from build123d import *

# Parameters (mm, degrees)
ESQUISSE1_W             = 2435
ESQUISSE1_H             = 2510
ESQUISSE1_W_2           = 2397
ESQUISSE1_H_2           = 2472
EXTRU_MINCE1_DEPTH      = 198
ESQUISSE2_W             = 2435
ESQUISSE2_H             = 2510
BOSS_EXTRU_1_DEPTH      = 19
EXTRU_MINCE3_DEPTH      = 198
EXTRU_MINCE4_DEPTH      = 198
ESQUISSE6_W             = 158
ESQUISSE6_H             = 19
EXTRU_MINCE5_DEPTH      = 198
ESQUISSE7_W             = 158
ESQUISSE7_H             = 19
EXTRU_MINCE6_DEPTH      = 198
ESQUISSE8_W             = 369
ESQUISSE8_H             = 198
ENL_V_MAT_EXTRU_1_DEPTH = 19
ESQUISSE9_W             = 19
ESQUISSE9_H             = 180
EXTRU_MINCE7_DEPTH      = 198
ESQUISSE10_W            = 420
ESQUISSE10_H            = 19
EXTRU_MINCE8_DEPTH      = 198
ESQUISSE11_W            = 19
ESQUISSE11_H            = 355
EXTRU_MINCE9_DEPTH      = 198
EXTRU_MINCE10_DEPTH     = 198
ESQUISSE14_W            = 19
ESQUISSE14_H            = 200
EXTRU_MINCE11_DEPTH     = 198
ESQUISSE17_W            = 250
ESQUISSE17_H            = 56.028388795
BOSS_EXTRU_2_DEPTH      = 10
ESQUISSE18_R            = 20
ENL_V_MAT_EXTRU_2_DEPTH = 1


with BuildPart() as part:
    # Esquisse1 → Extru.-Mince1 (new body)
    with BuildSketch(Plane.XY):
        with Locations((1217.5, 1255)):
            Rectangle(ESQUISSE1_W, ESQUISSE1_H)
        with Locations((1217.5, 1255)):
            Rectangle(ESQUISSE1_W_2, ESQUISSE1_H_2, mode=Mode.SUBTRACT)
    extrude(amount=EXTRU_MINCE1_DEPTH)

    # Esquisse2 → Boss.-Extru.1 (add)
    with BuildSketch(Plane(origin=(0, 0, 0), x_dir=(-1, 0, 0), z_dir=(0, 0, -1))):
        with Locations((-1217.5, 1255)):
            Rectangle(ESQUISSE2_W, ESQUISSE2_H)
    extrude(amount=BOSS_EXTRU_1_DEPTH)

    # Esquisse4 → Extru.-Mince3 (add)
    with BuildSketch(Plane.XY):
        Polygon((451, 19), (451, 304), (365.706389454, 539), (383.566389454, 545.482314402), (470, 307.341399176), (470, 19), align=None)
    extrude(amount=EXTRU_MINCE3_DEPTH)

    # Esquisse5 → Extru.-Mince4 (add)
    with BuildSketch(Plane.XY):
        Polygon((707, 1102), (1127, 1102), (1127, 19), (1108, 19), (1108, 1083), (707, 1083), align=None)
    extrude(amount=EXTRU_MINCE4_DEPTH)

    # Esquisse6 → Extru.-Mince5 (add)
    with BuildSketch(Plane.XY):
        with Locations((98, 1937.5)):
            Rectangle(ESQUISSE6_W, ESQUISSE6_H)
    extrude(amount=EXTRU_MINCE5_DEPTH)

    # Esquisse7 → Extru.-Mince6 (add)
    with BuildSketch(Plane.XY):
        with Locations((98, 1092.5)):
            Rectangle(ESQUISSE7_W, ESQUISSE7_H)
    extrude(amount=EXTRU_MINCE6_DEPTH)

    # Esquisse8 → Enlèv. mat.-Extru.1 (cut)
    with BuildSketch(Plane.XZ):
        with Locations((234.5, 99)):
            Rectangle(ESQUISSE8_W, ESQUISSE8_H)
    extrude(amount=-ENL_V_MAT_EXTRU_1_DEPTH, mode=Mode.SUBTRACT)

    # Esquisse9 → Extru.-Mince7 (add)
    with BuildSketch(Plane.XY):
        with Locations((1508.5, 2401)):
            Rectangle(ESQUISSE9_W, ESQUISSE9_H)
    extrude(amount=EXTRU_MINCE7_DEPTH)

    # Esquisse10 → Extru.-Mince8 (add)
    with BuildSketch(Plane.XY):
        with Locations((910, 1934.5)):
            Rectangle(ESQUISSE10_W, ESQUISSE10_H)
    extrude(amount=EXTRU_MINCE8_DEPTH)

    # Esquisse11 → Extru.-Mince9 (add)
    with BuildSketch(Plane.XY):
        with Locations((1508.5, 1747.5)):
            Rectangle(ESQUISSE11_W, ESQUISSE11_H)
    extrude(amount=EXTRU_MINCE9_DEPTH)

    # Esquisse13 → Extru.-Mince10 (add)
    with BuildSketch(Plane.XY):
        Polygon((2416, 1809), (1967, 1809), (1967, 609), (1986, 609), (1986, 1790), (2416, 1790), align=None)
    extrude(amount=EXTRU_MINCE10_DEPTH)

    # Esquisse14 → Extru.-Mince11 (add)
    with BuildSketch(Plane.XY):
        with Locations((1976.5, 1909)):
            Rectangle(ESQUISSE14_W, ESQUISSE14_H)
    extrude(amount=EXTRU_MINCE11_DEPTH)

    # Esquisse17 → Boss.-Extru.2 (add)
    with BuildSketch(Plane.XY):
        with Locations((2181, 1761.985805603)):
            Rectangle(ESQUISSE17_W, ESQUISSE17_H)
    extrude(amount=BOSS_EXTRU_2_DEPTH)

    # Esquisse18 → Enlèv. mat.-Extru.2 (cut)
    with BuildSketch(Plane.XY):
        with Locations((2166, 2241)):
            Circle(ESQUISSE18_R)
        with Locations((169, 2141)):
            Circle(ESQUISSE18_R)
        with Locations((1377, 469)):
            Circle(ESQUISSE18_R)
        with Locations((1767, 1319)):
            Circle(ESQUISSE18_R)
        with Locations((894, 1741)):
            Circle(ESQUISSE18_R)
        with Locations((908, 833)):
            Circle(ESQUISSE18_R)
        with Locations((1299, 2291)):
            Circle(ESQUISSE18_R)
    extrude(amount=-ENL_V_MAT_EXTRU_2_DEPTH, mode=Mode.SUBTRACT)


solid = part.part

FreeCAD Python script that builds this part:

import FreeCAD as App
import Part
import Sketcher


def add_polygon(sketch, points):
    """Adds a closed chain of lines whose ends are joined by coincident constraints."""
    first, n = sketch.GeometryCount, len(points)
    for a, b in zip(points, points[1:] + points[:1]):
        sketch.addGeometry(Part.LineSegment(App.Vector(*a, 0), App.Vector(*b, 0)), False)
    for i in range(n):
        sketch.addConstraint(Sketcher.Constraint("Coincident", first + i, 2, first + (i + 1) % n, 1))

doc = App.newDocument("Part")
body = doc.addObject("PartDesign::Body", "Body")

# Sketch on XY plane
sketch1 = body.newObject("Sketcher::SketchObject", "Sketch")
sketch1.AttachmentSupport = (doc.getObject("XY_Plane"), [""])
sketch1.MapMode = "FlatFace"
add_polygon(sketch1, [(0, 2510), (0, 0), (2435, 0), (2435, 2510)])  # lines 0-3
add_polygon(sketch1, [(2416, 19), (19, 19), (19, 2491), (2416, 2491)])  # lines 4-7
sketch1.addConstraint([
    Sketcher.Constraint("Vertical", 0),
    Sketcher.Constraint("Horizontal", 1),
    Sketcher.Constraint("Vertical", 2),
    Sketcher.Constraint("Horizontal", 3),
    Sketcher.Constraint("Horizontal", 4),
    Sketcher.Constraint("Vertical", 5),
    Sketcher.Constraint("Horizontal", 6),
    Sketcher.Constraint("Vertical", 7),
    Sketcher.Constraint("Coincident", 0, 2, -1, 1),
    Sketcher.Constraint("DistanceX", 1, 1, 1, 2, 2435.0),
    Sketcher.Constraint("DistanceX", 4, 2, 4, 1, 2397.0),
    Sketcher.Constraint("DistanceY", 0, 2, 0, 1, 2510.0),
    Sketcher.Constraint("DistanceY", 5, 1, 5, 2, 2472.0),
    Sketcher.Constraint("DistanceX", -1, 1, 4, 2, 19.0),
    Sketcher.Constraint("DistanceY", -1, 1, 4, 2, 19.0),
])
pad1 = body.newObject("PartDesign::Pad", "Pad")
pad1.Profile = sketch1
pad1.Length = 198

# Sketch on XY plane
sketch2 = body.newObject("Sketcher::SketchObject", "Sketch001")
sketch2.AttachmentSupport = (doc.getObject("XY_Plane"), [""])
sketch2.MapMode = "FlatFace"
add_polygon(sketch2, [(2435, 2510), (2435, 0), (0, 0), (0, 2510)])  # lines 0-3
sketch2.addConstraint([
    Sketcher.Constraint("Vertical", 0),
    Sketcher.Constraint("Horizontal", 1),
    Sketcher.Constraint("Vertical", 2),
    Sketcher.Constraint("Horizontal", 3),
    Sketcher.Constraint("Coincident", 1, 2, -1, 1),
    Sketcher.Constraint("DistanceX", 1, 2, 1, 1, 2435.0),
    Sketcher.Constraint("DistanceY", 0, 2, 0, 1, 2510.0),
])
pad2 = body.newObject("PartDesign::Pad", "Pad001")
pad2.Profile = sketch2
pad2.Length = 19
pad2.Reversed = True

# Sketch on XY plane
sketch3 = body.newObject("Sketcher::SketchObject", "Sketch002")
sketch3.AttachmentSupport = (doc.getObject("XY_Plane"), [""])
sketch3.MapMode = "FlatFace"
add_polygon(sketch3, [(451, 304), (451, 19), (470, 19), (470, 307.341399), (383.566389, 545.482314), (365.706389, 539)])  # lines 0-5
sketch3.addConstraint([
    Sketcher.Constraint("Vertical", 0),
    Sketcher.Constraint("Horizontal", 1),
    Sketcher.Constraint("Vertical", 2),
    Sketcher.Constraint("Perpendicular", 3, 4),
    Sketcher.Constraint("Perpendicular", 4, 5),
    Sketcher.Constraint("DistanceX", 1, 1, 1, 2, 19.0),
    Sketcher.Constraint("DistanceY", 0, 2, 0, 1, 285.0),
    Sketcher.Constraint("Distance", 4, 19.0),
    Sketcher.Constraint("Distance", 5, 250.0),
    Sketcher.Constraint("DistanceX", -1, 1, 0, 2, 451.0),
    Sketcher.Constraint("DistanceY", -1, 1, 0, 2, 19.0),
    Sketcher.Constraint("DistanceY", -1, 1, 4, 2, 539.0),
])
pad3 = body.newObject("PartDesign::Pad", "Pad002")
pad3.Profile = sketch3
pad3.Length = 198

# Sketch on XY plane
sketch4 = body.newObject("Sketcher::SketchObject", "Sketch003")
sketch4.AttachmentSupport = (doc.getObject("XY_Plane"), [""])
sketch4.MapMode = "FlatFace"
add_polygon(sketch4, [(1127, 1102), (707, 1102), (707, 1083), (1108, 1083), (1108, 19), (1127, 19)])  # lines 0-5
sketch4.addConstraint([
    Sketcher.Constraint("Horizontal", 0),
    Sketcher.Constraint("Vertical", 1),
    Sketcher.Constraint("Horizontal", 2),
    Sketcher.Constraint("Vertical", 3),
    Sketcher.Constraint("Horizontal", 4),
    Sketcher.Constraint("Vertical", 5),
    Sketcher.Constraint("Equal", 4, 1),
    Sketcher.Constraint("DistanceX", 0, 2, 0, 1, 420.0),
    Sketcher.Constraint("DistanceX", 2, 1, 2, 2, 401.0),
    Sketcher.Constraint("DistanceY", 3, 2, 3, 1, 1064.0),
    Sketcher.Constraint("DistanceX", -1, 1, 0, 2, 707.0),
    Sketcher.Constraint("DistanceY", -1, 1, 0, 2, 1102.0),
])
pad4 = body.newObject("PartDesign::Pad", "Pad003")
pad4.Profile = sketch4
pad4.Length = 198

# Sketch on XY plane
sketch5 = body.newObject("Sketcher::SketchObject", "Sketch004")
sketch5.AttachmentSupport = (doc.getObject("XY_Plane"), [""])
sketch5.MapMode = "FlatFace"
add_polygon(sketch5, [(19, 1947), (19, 1928), (177, 1928), (177, 1947)])  # lines 0-3
sketch5.addConstraint([
    Sketcher.Constraint("Vertical", 0),
    Sketcher.Constraint("Horizontal", 1),
    Sketcher.Constraint("Vertical", 2),
    Sketcher.Constraint("Horizontal", 3),
    Sketcher.Constraint("DistanceX", 1, 1, 1, 2, 158.0),
    Sketcher.Constraint("DistanceY", 0, 2, 0, 1, 19.0),
    Sketcher.Constraint("DistanceX", -1, 1, 0, 2, 19.0),
    Sketcher.Constraint("DistanceY", -1, 1, 0, 2, 1928.0),
])
pad5 = body.newObject("PartDesign::Pad", "Pad004")
pad5.Profile = sketch5
pad5.Length = 198

# Sketch on XY plane
sketch6 = body.newObject("Sketcher::SketchObject", "Sketch005")
sketch6.AttachmentSupport = (doc.getObject("XY_Plane"), [""])
sketch6.MapMode = "FlatFace"
add_polygon(sketch6, [(19, 1102), (19, 1083), (177, 1083), (177, 1102)])  # lines 0-3
sketch6.addConstraint([
    Sketcher.Constraint("Vertical", 0),
    Sketcher.Constraint("Horizontal", 1),
    Sketcher.Constraint("Vertical", 2),
    Sketcher.Constraint("Horizontal", 3),
    Sketcher.Constraint("DistanceX", 1, 1, 1, 2, 158.0),
    Sketcher.Constraint("DistanceY", 0, 2, 0, 1, 19.0),
    Sketcher.Constraint("DistanceX", -1, 1, 0, 2, 19.0),
    Sketcher.Constraint("DistanceY", -1, 1, 0, 2, 1083.0),
])
pad6 = body.newObject("PartDesign::Pad", "Pad005")
pad6.Profile = sketch6
pad6.Length = 198

# Sketch on XZ plane
sketch7 = body.newObject("Sketcher::SketchObject", "Sketch006")
sketch7.AttachmentSupport = (doc.getObject("XZ_Plane"), [""])
sketch7.MapMode = "FlatFace"
add_polygon(sketch7, [(50, 198), (50, 0), (419, 0), (419, 198)])  # lines 0-3
sketch7.addConstraint([
    Sketcher.Constraint("Vertical", 0),
    Sketcher.Constraint("Horizontal", 1),
    Sketcher.Constraint("Vertical", 2),
    Sketcher.Constraint("Horizontal", 3),
    Sketcher.Constraint("PointOnObject", 0, 2, -1),
    Sketcher.Constraint("DistanceX", 1, 1, 1, 2, 369.0),
    Sketcher.Constraint("DistanceY", 0, 2, 0, 1, 198.0),
    Sketcher.Constraint("DistanceX", -1, 1, 0, 2, 50.0),
])
pocket1 = body.newObject("PartDesign::Pocket", "Pocket")
pocket1.Profile = sketch7
pocket1.Length = 19

# Sketch on XY plane
sketch8 = body.newObject("Sketcher::SketchObject", "Sketch007")
sketch8.AttachmentSupport = (doc.getObject("XY_Plane"), [""])
sketch8.MapMode = "FlatFace"
add_polygon(sketch8, [(1499, 2491), (1499, 2311), (1518, 2311), (1518, 2491)])  # lines 0-3
sketch8.addConstraint([
    Sketcher.Constraint("Vertical", 0),
    Sketcher.Constraint("Horizontal", 1),
    Sketcher.Constraint("Vertical", 2),
    Sketcher.Constraint("Horizontal", 3),
    Sketcher.Constraint("DistanceX", 1, 1, 1, 2, 19.0),
    Sketcher.Constraint("DistanceY", 0, 2, 0, 1, 180.0),
    Sketcher.Constraint("DistanceX", -1, 1, 0, 2, 1499.0),
    Sketcher.Constraint("DistanceY", -1, 1, 0, 2, 2311.0),
])
pad7 = body.newObject("PartDesign::Pad", "Pad006")
pad7.Profile = sketch8
pad7.Length = 198

# Sketch on XY plane
sketch9 = body.newObject("Sketcher::SketchObject", "Sketch008")
sketch9.AttachmentSupport = (doc.getObject("XY_Plane"), [""])
sketch9.MapMode = "FlatFace"
add_polygon(sketch9, [(700, 1944), (700, 1925), (1120, 1925), (1120, 1944)])  # lines 0-3
sketch9.addConstraint([
    Sketcher.Constraint("Vertical", 0),
    Sketcher.Constraint("Horizontal", 1),
    Sketcher.Constraint("Vertical", 2),
    Sketcher.Constraint("Horizontal", 3),
    Sketcher.Constraint("DistanceX", 1, 1, 1, 2, 420.0),
    Sketcher.Constraint("DistanceY", 0, 2, 0, 1, 19.0),
    Sketcher.Constraint("DistanceX", -1, 1, 0, 2, 700.0),
    Sketcher.Constraint("DistanceY", -1, 1, 0, 2, 1925.0),
])
pad8 = body.newObject("PartDesign::Pad", "Pad007")
pad8.Profile = sketch9
pad8.Length = 198

# Sketch on XY plane
sketch10 = body.newObject("Sketcher::SketchObject", "Sketch009")
sketch10.AttachmentSupport = (doc.getObject("XY_Plane"), [""])
sketch10.MapMode = "FlatFace"
add_polygon(sketch10, [(1499, 1925), (1499, 1570), (1518, 1570), (1518, 1925)])  # lines 0-3
sketch10.addConstraint([
    Sketcher.Constraint("Vertical", 0),
    Sketcher.Constraint("Horizontal", 1),
    Sketcher.Constraint("Vertical", 2),
    Sketcher.Constraint("Horizontal", 3),
    Sketcher.Constraint("DistanceX", 1, 1, 1, 2, 19.0),
    Sketcher.Constraint("DistanceY", 0, 2, 0, 1, 355.0),
    Sketcher.Constraint("DistanceX", -1, 1, 0, 2, 1499.0),
    Sketcher.Constraint("DistanceY", -1, 1, 0, 2, 1570.0),
])
pad9 = body.newObject("PartDesign::Pad", "Pad008")
pad9.Profile = sketch10
pad9.Length = 198

# Sketch on XY plane
sketch11 = body.newObject("Sketcher::SketchObject", "Sketch010")
sketch11.AttachmentSupport = (doc.getObject("XY_Plane"), [""])
sketch11.MapMode = "FlatFace"
add_polygon(sketch11, [(2416, 1809), (1967, 1809), (1967, 609), (1986, 609), (1986, 1790), (2416, 1790)])  # lines 0-5
sketch11.addConstraint([
    Sketcher.Constraint("Horizontal", 0),
    Sketcher.Constraint("Vertical", 1),
    Sketcher.Constraint("Horizontal", 2),
    Sketcher.Constraint("Vertical", 3),
    Sketcher.Constraint("Horizontal", 4),
    Sketcher.Constraint("Vertical", 5),
    Sketcher.Constraint("Equal", 2, 5),
    Sketcher.Constraint("DistanceX", 0, 2, 0, 1, 449.0),
    Sketcher.Constraint("DistanceX", 2, 1, 2, 2, 19.0),
    Sketcher.Constraint("DistanceY", 1, 2, 1, 1, 1200.0),
    Sketcher.Constraint("DistanceX", -1, 1, 0, 2, 1967.0),
    Sketcher.Constraint("DistanceY", -1, 1, 0, 2, 1809.0),
])
pad10 = body.newObject("PartDesign::Pad", "Pad009")
pad10.Profile = sketch11
pad10.Length = 198

# Sketch on XY plane
sketch12 = body.newObject("Sketcher::SketchObject", "Sketch011")
sketch12.AttachmentSupport = (doc.getObject("XY_Plane"), [""])
sketch12.MapMode = "FlatFace"
add_polygon(sketch12, [(1967, 2009), (1967, 1809), (1986, 1809), (1986, 2009)])  # lines 0-3
sketch12.addConstraint([
    Sketcher.Constraint("Vertical", 0),
    Sketcher.Constraint("Horizontal", 1),
    Sketcher.Constraint("Vertical", 2),
    Sketcher.Constraint("Horizontal", 3),
    Sketcher.Constraint("DistanceX", 1, 1, 1, 2, 19.0),
    Sketcher.Constraint("DistanceY", 0, 2, 0, 1, 200.0),
    Sketcher.Constraint("DistanceX", -1, 1, 0, 2, 1967.0),
    Sketcher.Constraint("DistanceY", -1, 1, 0, 2, 1809.0),
])
pad11 = body.newObject("PartDesign::Pad", "Pad010")
pad11.Profile = sketch12
pad11.Length = 198

# Sketch on XY plane
sketch13 = body.newObject("Sketcher::SketchObject", "Sketch012")
sketch13.AttachmentSupport = (doc.getObject("XY_Plane"), [""])
sketch13.MapMode = "FlatFace"
add_polygon(sketch13, [(2056, 1790), (2056, 1733.971611), (2306, 1733.971611), (2306, 1790)])  # lines 0-3
sketch13.addConstraint([
    Sketcher.Constraint("Vertical", 0),
    Sketcher.Constraint("Horizontal", 1),
    Sketcher.Constraint("Vertical", 2),
    Sketcher.Constraint("Horizontal", 3),
    Sketcher.Constraint("DistanceX", 1, 1, 1, 2, 250.0),
    Sketcher.Constraint("DistanceX", -1, 1, 0, 2, 2056.0),
    Sketcher.Constraint("DistanceY", -1, 1, 2, 2, 1790.0),
    Sketcher.Constraint("DistanceY", 0, 2, 0, 1, 56.028389),
])
pad12 = body.newObject("PartDesign::Pad", "Pad011")
pad12.Profile = sketch13
pad12.Length = 10

# Sketch on XY plane
sketch14 = body.newObject("Sketcher::SketchObject", "Sketch013")
sketch14.AttachmentSupport = (doc.getObject("XY_Plane"), [""])
sketch14.MapMode = "FlatFace"
sketch14.addGeometry([
    Part.Circle(App.Vector(2166, 2241, 0), App.Vector(0, 0, 1), 20),  # 0
    Part.Circle(App.Vector(169, 2141, 0), App.Vector(0, 0, 1), 20),  # 1
    Part.Circle(App.Vector(1377, 469, 0), App.Vector(0, 0, 1), 20),  # 2
    Part.Circle(App.Vector(1767, 1319, 0), App.Vector(0, 0, 1), 20),  # 3
    Part.Circle(App.Vector(894, 1741, 0), App.Vector(0, 0, 1), 20),  # 4
    Part.Circle(App.Vector(908, 833, 0), App.Vector(0, 0, 1), 20),  # 5
    Part.Circle(App.Vector(1299, 2291, 0), App.Vector(0, 0, 1), 20),  # 6
], False)
sketch14.addConstraint([
    Sketcher.Constraint("Equal", 0, 1),
    Sketcher.Constraint("Equal", 1, 2),
    Sketcher.Constraint("Equal", 2, 3),
    Sketcher.Constraint("Equal", 3, 4),
    Sketcher.Constraint("Equal", 4, 5),
    Sketcher.Constraint("Equal", 5, 6),
    Sketcher.Constraint("Diameter", 0, 40.0),
    Sketcher.Constraint("DistanceX", -1, 1, 0, 3, 2166.0),
    Sketcher.Constraint("DistanceY", -1, 1, 0, 3, 2241.0),
    Sketcher.Constraint("DistanceX", -1, 1, 1, 3, 169.0),
    Sketcher.Constraint("DistanceY", -1, 1, 1, 3, 2141.0),
    Sketcher.Constraint("DistanceX", -1, 1, 2, 3, 1377.0),
    Sketcher.Constraint("DistanceY", -1, 1, 2, 3, 469.0),
    Sketcher.Constraint("DistanceX", -1, 1, 3, 3, 1767.0),
    Sketcher.Constraint("DistanceY", -1, 1, 3, 3, 1319.0),
    Sketcher.Constraint("DistanceX", -1, 1, 4, 3, 894.0),
    Sketcher.Constraint("DistanceY", -1, 1, 4, 3, 1741.0),
    Sketcher.Constraint("DistanceX", -1, 1, 5, 3, 908.0),
    Sketcher.Constraint("DistanceY", -1, 1, 5, 3, 833.0),
    Sketcher.Constraint("DistanceX", -1, 1, 6, 3, 1299.0),
    Sketcher.Constraint("DistanceY", -1, 1, 6, 3, 2291.0),
])
pocket2 = body.newObject("PartDesign::Pocket", "Pocket001")
pocket2.Profile = sketch14
pocket2.Length = 1

doc.recompute()
